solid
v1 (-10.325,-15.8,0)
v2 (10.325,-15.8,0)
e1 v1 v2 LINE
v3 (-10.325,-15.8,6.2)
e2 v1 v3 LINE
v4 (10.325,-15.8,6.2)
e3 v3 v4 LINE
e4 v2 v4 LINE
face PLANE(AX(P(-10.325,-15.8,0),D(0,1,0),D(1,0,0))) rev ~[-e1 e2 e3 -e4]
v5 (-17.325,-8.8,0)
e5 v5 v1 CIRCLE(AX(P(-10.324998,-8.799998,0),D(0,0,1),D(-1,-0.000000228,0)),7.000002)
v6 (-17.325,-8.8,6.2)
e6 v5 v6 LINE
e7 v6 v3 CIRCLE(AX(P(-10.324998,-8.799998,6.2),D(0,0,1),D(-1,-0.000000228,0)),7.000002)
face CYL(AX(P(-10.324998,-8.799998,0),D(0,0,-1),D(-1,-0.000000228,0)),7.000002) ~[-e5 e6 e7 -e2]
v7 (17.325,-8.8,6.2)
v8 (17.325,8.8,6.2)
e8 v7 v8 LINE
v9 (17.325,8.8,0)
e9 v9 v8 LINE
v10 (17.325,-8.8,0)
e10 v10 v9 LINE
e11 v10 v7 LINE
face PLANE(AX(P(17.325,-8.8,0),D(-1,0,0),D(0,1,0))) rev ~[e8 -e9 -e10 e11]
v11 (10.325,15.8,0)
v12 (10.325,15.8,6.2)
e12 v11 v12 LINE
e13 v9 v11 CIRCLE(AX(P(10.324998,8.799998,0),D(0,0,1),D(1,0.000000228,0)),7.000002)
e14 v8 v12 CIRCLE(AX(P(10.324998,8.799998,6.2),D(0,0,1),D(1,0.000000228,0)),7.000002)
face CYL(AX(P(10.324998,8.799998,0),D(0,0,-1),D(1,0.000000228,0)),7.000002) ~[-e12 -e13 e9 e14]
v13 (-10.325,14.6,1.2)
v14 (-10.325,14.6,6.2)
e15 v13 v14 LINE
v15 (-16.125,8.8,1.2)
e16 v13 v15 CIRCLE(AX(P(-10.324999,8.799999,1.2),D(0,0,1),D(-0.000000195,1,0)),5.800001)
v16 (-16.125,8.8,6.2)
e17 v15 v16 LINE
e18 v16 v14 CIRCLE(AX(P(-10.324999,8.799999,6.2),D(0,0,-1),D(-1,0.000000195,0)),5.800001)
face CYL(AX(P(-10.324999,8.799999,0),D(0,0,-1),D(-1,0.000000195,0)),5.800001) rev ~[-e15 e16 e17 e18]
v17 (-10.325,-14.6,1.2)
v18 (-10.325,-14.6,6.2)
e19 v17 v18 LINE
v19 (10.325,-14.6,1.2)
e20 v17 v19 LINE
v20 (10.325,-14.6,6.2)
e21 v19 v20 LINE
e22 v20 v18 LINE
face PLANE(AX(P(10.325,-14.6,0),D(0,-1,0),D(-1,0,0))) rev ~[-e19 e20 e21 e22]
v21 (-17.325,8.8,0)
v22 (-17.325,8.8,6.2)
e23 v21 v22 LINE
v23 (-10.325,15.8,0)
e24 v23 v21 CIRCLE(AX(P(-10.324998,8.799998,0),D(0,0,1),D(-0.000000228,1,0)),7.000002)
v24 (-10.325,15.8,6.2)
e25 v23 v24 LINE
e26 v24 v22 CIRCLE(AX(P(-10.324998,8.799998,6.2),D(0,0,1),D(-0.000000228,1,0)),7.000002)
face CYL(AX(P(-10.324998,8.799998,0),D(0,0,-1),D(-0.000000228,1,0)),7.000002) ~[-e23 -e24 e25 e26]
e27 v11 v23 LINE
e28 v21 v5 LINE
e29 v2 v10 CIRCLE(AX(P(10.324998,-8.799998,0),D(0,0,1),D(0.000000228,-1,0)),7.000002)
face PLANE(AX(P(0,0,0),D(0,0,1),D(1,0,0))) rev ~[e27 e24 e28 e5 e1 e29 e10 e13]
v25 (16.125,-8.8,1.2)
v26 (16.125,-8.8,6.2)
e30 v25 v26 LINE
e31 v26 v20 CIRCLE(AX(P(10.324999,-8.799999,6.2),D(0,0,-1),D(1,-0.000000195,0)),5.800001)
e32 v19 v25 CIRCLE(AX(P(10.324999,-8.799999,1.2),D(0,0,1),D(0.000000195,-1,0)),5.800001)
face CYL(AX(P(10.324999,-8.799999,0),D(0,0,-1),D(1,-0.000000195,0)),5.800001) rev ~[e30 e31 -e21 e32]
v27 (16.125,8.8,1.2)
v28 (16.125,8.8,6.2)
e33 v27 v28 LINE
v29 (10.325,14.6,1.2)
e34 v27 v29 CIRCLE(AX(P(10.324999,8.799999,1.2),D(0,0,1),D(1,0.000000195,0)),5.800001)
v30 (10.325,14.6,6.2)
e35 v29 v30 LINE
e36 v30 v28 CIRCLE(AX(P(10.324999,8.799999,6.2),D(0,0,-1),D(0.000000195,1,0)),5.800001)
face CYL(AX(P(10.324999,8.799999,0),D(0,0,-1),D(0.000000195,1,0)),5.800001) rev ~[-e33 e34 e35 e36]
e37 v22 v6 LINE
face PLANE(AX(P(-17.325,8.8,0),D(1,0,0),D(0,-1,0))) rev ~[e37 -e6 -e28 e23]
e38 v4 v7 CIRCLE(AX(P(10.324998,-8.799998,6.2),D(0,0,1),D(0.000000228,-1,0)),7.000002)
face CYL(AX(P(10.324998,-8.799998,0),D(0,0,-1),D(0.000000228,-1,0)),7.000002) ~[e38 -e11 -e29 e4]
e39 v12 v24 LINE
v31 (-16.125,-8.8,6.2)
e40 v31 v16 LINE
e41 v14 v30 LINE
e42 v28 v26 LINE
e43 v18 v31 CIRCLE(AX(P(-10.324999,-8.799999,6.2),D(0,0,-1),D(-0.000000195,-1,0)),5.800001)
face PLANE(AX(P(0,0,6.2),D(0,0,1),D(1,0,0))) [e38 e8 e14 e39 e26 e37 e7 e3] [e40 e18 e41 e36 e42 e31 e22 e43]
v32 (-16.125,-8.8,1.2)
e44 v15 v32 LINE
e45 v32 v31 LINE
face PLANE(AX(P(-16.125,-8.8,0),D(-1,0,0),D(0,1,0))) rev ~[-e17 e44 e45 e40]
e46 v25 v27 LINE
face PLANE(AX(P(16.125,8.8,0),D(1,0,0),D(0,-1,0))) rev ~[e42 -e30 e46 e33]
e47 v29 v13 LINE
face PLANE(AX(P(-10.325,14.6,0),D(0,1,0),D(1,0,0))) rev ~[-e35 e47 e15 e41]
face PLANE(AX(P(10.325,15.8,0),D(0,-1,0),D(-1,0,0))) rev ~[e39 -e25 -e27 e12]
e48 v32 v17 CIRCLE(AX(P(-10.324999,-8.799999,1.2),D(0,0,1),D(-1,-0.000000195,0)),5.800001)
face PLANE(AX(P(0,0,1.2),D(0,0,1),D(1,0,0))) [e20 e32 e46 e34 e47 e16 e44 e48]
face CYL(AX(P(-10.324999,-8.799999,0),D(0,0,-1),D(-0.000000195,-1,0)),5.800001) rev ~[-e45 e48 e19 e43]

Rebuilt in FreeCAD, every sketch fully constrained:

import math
import FreeCAD as App
import Part
import Sketcher
from FreeCAD import Vector
Q = App.Units.Quantity

doc = App.newDocument("Part")
body = doc.addObject("PartDesign::Body", "Body")

# Sketch on XY plane
sketch1 = body.newObject("Sketcher::SketchObject", "Sketch")
sketch1.AttachmentSupport = (doc.getObject("XY_Plane"), [""])
sketch1.MapMode = "FlatFace"
sketch1.addGeometry(Part.LineSegment(Vector(-10, -16, 0), Vector(10, -16, 0)), False)
sketch1.addGeometry(Part.ArcOfCircle(Part.Circle(Vector(10, -9, 0), Vector(0, 0, 1), 7), math.radians(-90), math.radians(0)), False)
sketch1.addGeometry(Part.LineSegment(Vector(17, -9, 0), Vector(17, 9, 0)), False)
sketch1.addGeometry(Part.ArcOfCircle(Part.Circle(Vector(10, 9, 0), Vector(0, 0, 1), 7), math.radians(0), math.radians(90)), False)
sketch1.addGeometry(Part.LineSegment(Vector(10, 16, 0), Vector(-10, 16, 0)), False)
sketch1.addGeometry(Part.ArcOfCircle(Part.Circle(Vector(-10, 9, 0), Vector(0, 0, 1), 7), math.radians(90), math.radians(180)), False)
sketch1.addGeometry(Part.LineSegment(Vector(-17, 9, 0), Vector(-17, -9, 0)), False)
sketch1.addGeometry(Part.ArcOfCircle(Part.Circle(Vector(-10, -9, 0), Vector(0, 0, 1), 7), math.radians(-180), math.radians(-90)), False)
sketch1.addGeometry(Part.ArcOfCircle(Part.Circle(Vector(10, 9, 0), Vector(0, 0, 1), 6), math.radians(0), math.radians(90)), False)
sketch1.addGeometry(Part.LineSegment(Vector(16, 9, 0), Vector(16, -9, 0)), False)
sketch1.addGeometry(Part.ArcOfCircle(Part.Circle(Vector(10, -9, 0), Vector(0, 0, 1), 6), math.radians(-90), math.radians(0)), False)
sketch1.addGeometry(Part.LineSegment(Vector(10, -15, 0), Vector(-10, -15, 0)), False)
sketch1.addGeometry(Part.ArcOfCircle(Part.Circle(Vector(-10, -9, 0), Vector(0, 0, 1), 6), math.radians(-180), math.radians(-90)), False)
sketch1.addGeometry(Part.LineSegment(Vector(-16, -9, 0), Vector(-16, 9, 0)), False)
sketch1.addGeometry(Part.ArcOfCircle(Part.Circle(Vector(-10, 9, 0), Vector(0, 0, 1), 6), math.radians(90), math.radians(180)), False)
sketch1.addGeometry(Part.LineSegment(Vector(-10, 15, 0), Vector(10, 15, 0)), False)
sketch1.addConstraint(Sketcher.Constraint("Tangent", 0, 2, 1, 1))
sketch1.addConstraint(Sketcher.Constraint("Tangent", 1, 2, 2, 1))
sketch1.addConstraint(Sketcher.Constraint("Tangent", 2, 2, 3, 1))
sketch1.addConstraint(Sketcher.Constraint("Tangent", 3, 2, 4, 1))
sketch1.addConstraint(Sketcher.Constraint("Tangent", 4, 2, 5, 1))
sketch1.addConstraint(Sketcher.Constraint("Tangent", 5, 2, 6, 1))
sketch1.addConstraint(Sketcher.Constraint("Tangent", 6, 2, 7, 1))
sketch1.addConstraint(Sketcher.Constraint("Tangent", 7, 2, 0, 1))
sketch1.addConstraint(Sketcher.Constraint("Tangent", 8, 1, 9, 1))
sketch1.addConstraint(Sketcher.Constraint("Tangent", 9, 2, 10, 2))
sketch1.addConstraint(Sketcher.Constraint("Tangent", 10, 1, 11, 1))
sketch1.addConstraint(Sketcher.Constraint("Tangent", 11, 2, 12, 2))
sketch1.addConstraint(Sketcher.Constraint("Tangent", 12, 1, 13, 1))
sketch1.addConstraint(Sketcher.Constraint("Tangent", 13, 2, 14, 2))
sketch1.addConstraint(Sketcher.Constraint("Tangent", 14, 1, 15, 1))
sketch1.addConstraint(Sketcher.Constraint("Tangent", 15, 2, 8, 2))
sketch1.addConstraint(Sketcher.Constraint("Horizontal", 0))
sketch1.addConstraint(Sketcher.Constraint("Vertical", 2))
sketch1.addConstraint(Sketcher.Constraint("Horizontal", 4))
sketch1.addConstraint(Sketcher.Constraint("Vertical", 6))
sketch1.addConstraint(Sketcher.Constraint("Vertical", 9))
sketch1.addConstraint(Sketcher.Constraint("Horizontal", 11))
sketch1.addConstraint(Sketcher.Constraint("Vertical", 13))
sketch1.addConstraint(Sketcher.Constraint("Horizontal", 15))
sketch1.addConstraint(Sketcher.Constraint("Coincident", 8, 3, 3, 3))
sketch1.addConstraint(Sketcher.Constraint("Coincident", 10, 3, 1, 3))
sketch1.addConstraint(Sketcher.Constraint("Coincident", 12, 3, 7, 3))
sketch1.addConstraint(Sketcher.Constraint("Equal", 1, 3))
sketch1.addConstraint(Sketcher.Constraint("Equal", 3, 5))
sketch1.addConstraint(Sketcher.Constraint("Equal", 5, 7))
sketch1.addConstraint(Sketcher.Constraint("Equal", 12, 14))
sketch1.addConstraint(Sketcher.Constraint("Symmetric", 1, 3, 5, 3, -1, 1))
sketch1.addConstraint(Sketcher.Constraint("Radius", 1, Q("7.000002 mm")))
sketch1.addConstraint(Sketcher.Constraint("Radius", 8, Q("5.800001 mm")))
sketch1.addConstraint(Sketcher.Constraint("DistanceY", 2, 1, 2, 2, Q("17.6 mm")))
sketch1.addConstraint(Sketcher.Constraint("DistanceX", 0, 1, 0, 2, Q("20.65 mm")))
pad1 = body.newObject("PartDesign::Pad", "Pad")
pad1.Profile = sketch1
pad1.Length = 6.2

# Sketch on XY plane
sketch2 = body.newObject("Sketcher::SketchObject", "Sketch001")
sketch2.AttachmentSupport = (doc.getObject("XY_Plane"), [""])
sketch2.MapMode = "FlatFace"
sketch2.addGeometry(Part.ArcOfCircle(Part.Circle(Vector(10, -9, 0), Vector(0, 0, 1), 6), math.radians(-90), math.radians(0)), False)
sketch2.addGeometry(Part.LineSegment(Vector(16, -9, 0), Vector(16, 9, 0)), False)
sketch2.addGeometry(Part.ArcOfCircle(Part.Circle(Vector(10, 9, 0), Vector(0, 0, 1), 6), math.radians(0), math.radians(90)), False)
sketch2.addGeometry(Part.LineSegment(Vector(10, 15, 0), Vector(-10, 15, 0)), False)
sketch2.addGeometry(Part.ArcOfCircle(Part.Circle(Vector(-10, 9, 0), Vector(0, 0, 1), 6), math.radians(90), math.radians(180)), False)
sketch2.addGeometry(Part.LineSegment(Vector(-16, 9, 0), Vector(-16, -9, 0)), False)
sketch2.addGeometry(Part.ArcOfCircle(Part.Circle(Vector(-10, -9, 0), Vector(0, 0, 1), 6), math.radians(-180), math.radians(-90)), False)
sketch2.addGeometry(Part.LineSegment(Vector(-10, -15, 0), Vector(10, -15, 0)), False)
sketch2.addConstraint(Sketcher.Constraint("Tangent", 0, 2, 1, 1))
sketch2.addConstraint(Sketcher.Constraint("Tangent", 1, 2, 2, 1))
sketch2.addConstraint(Sketcher.Constraint("Tangent", 2, 2, 3, 1))
sketch2.addConstraint(Sketcher.Constraint("Tangent", 3, 2, 4, 1))
sketch2.addConstraint(Sketcher.Constraint("Tangent", 4, 2, 5, 1))
sketch2.addConstraint(Sketcher.Constraint("Tangent", 5, 2, 6, 1))
sketch2.addConstraint(Sketcher.Constraint("Tangent", 6, 2, 7, 1))
sketch2.addConstraint(Sketcher.Constraint("Tangent", 7, 2, 0, 1))
sketch2.addConstraint(Sketcher.Constraint("Vertical", 1))
sketch2.addConstraint(Sketcher.Constraint("Horizontal", 3))
sketch2.addConstraint(Sketcher.Constraint("Vertical", 5))
sketch2.addConstraint(Sketcher.Constraint("Horizontal", 7))
sketch2.addConstraint(Sketcher.Constraint("Equal", 0, 2))
sketch2.addConstraint(Sketcher.Constraint("Equal", 2, 4))
sketch2.addConstraint(Sketcher.Constraint("Equal", 4, 6))
sketch2.addConstraint(Sketcher.Constraint("Symmetric", 0, 3, 4, 3, -1, 1))
sketch2.addConstraint(Sketcher.Constraint("Radius", 0, Q("5.800001 mm")))
sketch2.addConstraint(Sketcher.Constraint("DistanceY", 1, 1, 1, 2, Q("17.6 mm")))
sketch2.addConstraint(Sketcher.Constraint("DistanceX", 3, 2, 3, 1, Q("20.65 mm")))
pad2 = body.newObject("PartDesign::Pad", "Pad001")
pad2.Profile = sketch2
pad2.Length = 1.2

doc.recompute()
